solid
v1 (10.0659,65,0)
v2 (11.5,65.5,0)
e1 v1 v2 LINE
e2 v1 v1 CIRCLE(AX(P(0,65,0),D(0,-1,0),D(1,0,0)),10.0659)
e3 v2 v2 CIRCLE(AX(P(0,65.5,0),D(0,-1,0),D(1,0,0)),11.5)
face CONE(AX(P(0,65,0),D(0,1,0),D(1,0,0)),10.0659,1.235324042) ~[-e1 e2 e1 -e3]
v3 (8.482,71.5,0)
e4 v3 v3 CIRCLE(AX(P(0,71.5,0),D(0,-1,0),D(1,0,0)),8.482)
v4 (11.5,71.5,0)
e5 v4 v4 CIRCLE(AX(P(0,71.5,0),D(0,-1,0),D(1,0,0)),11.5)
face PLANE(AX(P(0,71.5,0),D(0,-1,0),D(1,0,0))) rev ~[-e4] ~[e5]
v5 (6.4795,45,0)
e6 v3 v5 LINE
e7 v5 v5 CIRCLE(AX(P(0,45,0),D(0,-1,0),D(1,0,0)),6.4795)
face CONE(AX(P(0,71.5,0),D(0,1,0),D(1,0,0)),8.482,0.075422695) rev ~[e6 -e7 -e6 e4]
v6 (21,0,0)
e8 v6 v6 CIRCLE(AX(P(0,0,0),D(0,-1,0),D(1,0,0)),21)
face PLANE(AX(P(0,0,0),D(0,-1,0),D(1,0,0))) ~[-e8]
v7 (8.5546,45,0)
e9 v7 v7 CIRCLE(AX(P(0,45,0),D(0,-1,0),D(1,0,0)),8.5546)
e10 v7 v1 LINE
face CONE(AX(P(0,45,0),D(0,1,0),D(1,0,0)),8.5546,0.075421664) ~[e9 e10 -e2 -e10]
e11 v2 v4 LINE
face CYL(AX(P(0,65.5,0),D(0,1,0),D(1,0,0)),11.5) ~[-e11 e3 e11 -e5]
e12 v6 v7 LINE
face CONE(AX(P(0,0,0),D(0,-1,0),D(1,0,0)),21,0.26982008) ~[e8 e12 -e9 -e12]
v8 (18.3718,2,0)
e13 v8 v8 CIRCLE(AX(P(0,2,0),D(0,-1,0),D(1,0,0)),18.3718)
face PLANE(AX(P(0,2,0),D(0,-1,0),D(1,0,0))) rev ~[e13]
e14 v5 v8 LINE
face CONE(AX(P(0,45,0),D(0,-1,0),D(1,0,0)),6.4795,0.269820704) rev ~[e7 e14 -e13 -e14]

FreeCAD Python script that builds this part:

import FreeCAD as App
import Part
import Sketcher

V = App.Vector
Q = App.Units.Quantity

doc = App.newDocument("Part")
body = doc.addObject("PartDesign::Body", "Body")

# Sketch on XY plane
sketch1 = doc.addObject("Sketcher::SketchObject", "Sketch")
body.addObject(sketch1)
sketch1.AttachmentSupport = (doc.XY_Plane, [""])
sketch1.MapMode = "FlatFace"
sketch1.addGeometry([
    Part.LineSegment(V(0, 2, 0), V(0, 0, 0)),  # 0
    Part.LineSegment(V(0, 0, 0), V(21, 0, 0)),  # 1
    Part.LineSegment(V(21, 0, 0), V(8.6, 45, 0)),  # 2
    Part.LineSegment(V(8.6, 45, 0), V(10.1, 65, 0)),  # 3
    Part.LineSegment(V(10.1, 65, 0), V(11.5, 65.5, 0)),  # 4
    Part.LineSegment(V(11.5, 65.5, 0), V(11.5, 71.5, 0)),  # 5
    Part.LineSegment(V(11.5, 71.5, 0), V(8.5, 71.5, 0)),  # 6
    Part.LineSegment(V(8.5, 71.5, 0), V(6.5, 45, 0)),  # 7
    Part.LineSegment(V(6.5, 45, 0), V(18.4, 2, 0)),  # 8
    Part.LineSegment(V(18.4, 2, 0), V(0, 2, 0)),  # 9
], False)
sketch1.addConstraint([
    Sketcher.Constraint("Coincident", 0, 2, 1, 1),
    Sketcher.Constraint("Coincident", 1, 2, 2, 1),
    Sketcher.Constraint("Coincident", 2, 2, 3, 1),
    Sketcher.Constraint("Coincident", 3, 2, 4, 1),
    Sketcher.Constraint("Coincident", 4, 2, 5, 1),
    Sketcher.Constraint("Coincident", 5, 2, 6, 1),
    Sketcher.Constraint("Coincident", 6, 2, 7, 1),
    Sketcher.Constraint("Coincident", 7, 2, 8, 1),
    Sketcher.Constraint("Coincident", 8, 2, 9, 1),
    Sketcher.Constraint("Coincident", 9, 2, 0, 1),
    Sketcher.Constraint("Vertical", 0),
    Sketcher.Constraint("Horizontal", 1),
    Sketcher.Constraint("Vertical", 5),
    Sketcher.Constraint("Horizontal", 6),
    Sketcher.Constraint("Horizontal", 9),
    Sketcher.Constraint("Coincident", 0, 2, -1, 1),
    Sketcher.Constraint("Parallel", 3, 7),
    Sketcher.Constraint("Parallel", 2, 8),
    Sketcher.Constraint("Horizontal", 2, 2, 7, 2),
    Sketcher.Constraint("DistanceX", 1, 1, 1, 2, Q("21 mm")),
    Sketcher.Constraint("DistanceY", 0, 2, 0, 1, Q("2 mm")),
    Sketcher.Constraint("DistanceY", 5, 1, 5, 2, Q("6 mm")),
    Sketcher.Constraint("DistanceY", -1, 1, 2, 2, Q("45 mm")),
    Sketcher.Constraint("DistanceY", 2, 2, 3, 2, Q("20 mm")),
    Sketcher.Constraint("DistanceX", -1, 1, 4, 2, Q("11.5 mm")),
    Sketcher.Constraint("DistanceY", 3, 2, 4, 2, Q("0.5 mm")),
    Sketcher.Constraint("Angle", 2, Q("105.4596 deg")),
    Sketcher.Constraint("Angle", 4, Q("19.2211 deg")),
    Sketcher.Constraint("DistanceX", 6, 2, 6, 1, Q("3.018 mm")),
])
revolution = doc.addObject("PartDesign::Revolution", "Revolution")
body.addObject(revolution)
revolution.Profile = sketch1
revolution.ReferenceAxis = (sketch1, ["V_Axis"])
revolution.Angle = 360

doc.recompute()
